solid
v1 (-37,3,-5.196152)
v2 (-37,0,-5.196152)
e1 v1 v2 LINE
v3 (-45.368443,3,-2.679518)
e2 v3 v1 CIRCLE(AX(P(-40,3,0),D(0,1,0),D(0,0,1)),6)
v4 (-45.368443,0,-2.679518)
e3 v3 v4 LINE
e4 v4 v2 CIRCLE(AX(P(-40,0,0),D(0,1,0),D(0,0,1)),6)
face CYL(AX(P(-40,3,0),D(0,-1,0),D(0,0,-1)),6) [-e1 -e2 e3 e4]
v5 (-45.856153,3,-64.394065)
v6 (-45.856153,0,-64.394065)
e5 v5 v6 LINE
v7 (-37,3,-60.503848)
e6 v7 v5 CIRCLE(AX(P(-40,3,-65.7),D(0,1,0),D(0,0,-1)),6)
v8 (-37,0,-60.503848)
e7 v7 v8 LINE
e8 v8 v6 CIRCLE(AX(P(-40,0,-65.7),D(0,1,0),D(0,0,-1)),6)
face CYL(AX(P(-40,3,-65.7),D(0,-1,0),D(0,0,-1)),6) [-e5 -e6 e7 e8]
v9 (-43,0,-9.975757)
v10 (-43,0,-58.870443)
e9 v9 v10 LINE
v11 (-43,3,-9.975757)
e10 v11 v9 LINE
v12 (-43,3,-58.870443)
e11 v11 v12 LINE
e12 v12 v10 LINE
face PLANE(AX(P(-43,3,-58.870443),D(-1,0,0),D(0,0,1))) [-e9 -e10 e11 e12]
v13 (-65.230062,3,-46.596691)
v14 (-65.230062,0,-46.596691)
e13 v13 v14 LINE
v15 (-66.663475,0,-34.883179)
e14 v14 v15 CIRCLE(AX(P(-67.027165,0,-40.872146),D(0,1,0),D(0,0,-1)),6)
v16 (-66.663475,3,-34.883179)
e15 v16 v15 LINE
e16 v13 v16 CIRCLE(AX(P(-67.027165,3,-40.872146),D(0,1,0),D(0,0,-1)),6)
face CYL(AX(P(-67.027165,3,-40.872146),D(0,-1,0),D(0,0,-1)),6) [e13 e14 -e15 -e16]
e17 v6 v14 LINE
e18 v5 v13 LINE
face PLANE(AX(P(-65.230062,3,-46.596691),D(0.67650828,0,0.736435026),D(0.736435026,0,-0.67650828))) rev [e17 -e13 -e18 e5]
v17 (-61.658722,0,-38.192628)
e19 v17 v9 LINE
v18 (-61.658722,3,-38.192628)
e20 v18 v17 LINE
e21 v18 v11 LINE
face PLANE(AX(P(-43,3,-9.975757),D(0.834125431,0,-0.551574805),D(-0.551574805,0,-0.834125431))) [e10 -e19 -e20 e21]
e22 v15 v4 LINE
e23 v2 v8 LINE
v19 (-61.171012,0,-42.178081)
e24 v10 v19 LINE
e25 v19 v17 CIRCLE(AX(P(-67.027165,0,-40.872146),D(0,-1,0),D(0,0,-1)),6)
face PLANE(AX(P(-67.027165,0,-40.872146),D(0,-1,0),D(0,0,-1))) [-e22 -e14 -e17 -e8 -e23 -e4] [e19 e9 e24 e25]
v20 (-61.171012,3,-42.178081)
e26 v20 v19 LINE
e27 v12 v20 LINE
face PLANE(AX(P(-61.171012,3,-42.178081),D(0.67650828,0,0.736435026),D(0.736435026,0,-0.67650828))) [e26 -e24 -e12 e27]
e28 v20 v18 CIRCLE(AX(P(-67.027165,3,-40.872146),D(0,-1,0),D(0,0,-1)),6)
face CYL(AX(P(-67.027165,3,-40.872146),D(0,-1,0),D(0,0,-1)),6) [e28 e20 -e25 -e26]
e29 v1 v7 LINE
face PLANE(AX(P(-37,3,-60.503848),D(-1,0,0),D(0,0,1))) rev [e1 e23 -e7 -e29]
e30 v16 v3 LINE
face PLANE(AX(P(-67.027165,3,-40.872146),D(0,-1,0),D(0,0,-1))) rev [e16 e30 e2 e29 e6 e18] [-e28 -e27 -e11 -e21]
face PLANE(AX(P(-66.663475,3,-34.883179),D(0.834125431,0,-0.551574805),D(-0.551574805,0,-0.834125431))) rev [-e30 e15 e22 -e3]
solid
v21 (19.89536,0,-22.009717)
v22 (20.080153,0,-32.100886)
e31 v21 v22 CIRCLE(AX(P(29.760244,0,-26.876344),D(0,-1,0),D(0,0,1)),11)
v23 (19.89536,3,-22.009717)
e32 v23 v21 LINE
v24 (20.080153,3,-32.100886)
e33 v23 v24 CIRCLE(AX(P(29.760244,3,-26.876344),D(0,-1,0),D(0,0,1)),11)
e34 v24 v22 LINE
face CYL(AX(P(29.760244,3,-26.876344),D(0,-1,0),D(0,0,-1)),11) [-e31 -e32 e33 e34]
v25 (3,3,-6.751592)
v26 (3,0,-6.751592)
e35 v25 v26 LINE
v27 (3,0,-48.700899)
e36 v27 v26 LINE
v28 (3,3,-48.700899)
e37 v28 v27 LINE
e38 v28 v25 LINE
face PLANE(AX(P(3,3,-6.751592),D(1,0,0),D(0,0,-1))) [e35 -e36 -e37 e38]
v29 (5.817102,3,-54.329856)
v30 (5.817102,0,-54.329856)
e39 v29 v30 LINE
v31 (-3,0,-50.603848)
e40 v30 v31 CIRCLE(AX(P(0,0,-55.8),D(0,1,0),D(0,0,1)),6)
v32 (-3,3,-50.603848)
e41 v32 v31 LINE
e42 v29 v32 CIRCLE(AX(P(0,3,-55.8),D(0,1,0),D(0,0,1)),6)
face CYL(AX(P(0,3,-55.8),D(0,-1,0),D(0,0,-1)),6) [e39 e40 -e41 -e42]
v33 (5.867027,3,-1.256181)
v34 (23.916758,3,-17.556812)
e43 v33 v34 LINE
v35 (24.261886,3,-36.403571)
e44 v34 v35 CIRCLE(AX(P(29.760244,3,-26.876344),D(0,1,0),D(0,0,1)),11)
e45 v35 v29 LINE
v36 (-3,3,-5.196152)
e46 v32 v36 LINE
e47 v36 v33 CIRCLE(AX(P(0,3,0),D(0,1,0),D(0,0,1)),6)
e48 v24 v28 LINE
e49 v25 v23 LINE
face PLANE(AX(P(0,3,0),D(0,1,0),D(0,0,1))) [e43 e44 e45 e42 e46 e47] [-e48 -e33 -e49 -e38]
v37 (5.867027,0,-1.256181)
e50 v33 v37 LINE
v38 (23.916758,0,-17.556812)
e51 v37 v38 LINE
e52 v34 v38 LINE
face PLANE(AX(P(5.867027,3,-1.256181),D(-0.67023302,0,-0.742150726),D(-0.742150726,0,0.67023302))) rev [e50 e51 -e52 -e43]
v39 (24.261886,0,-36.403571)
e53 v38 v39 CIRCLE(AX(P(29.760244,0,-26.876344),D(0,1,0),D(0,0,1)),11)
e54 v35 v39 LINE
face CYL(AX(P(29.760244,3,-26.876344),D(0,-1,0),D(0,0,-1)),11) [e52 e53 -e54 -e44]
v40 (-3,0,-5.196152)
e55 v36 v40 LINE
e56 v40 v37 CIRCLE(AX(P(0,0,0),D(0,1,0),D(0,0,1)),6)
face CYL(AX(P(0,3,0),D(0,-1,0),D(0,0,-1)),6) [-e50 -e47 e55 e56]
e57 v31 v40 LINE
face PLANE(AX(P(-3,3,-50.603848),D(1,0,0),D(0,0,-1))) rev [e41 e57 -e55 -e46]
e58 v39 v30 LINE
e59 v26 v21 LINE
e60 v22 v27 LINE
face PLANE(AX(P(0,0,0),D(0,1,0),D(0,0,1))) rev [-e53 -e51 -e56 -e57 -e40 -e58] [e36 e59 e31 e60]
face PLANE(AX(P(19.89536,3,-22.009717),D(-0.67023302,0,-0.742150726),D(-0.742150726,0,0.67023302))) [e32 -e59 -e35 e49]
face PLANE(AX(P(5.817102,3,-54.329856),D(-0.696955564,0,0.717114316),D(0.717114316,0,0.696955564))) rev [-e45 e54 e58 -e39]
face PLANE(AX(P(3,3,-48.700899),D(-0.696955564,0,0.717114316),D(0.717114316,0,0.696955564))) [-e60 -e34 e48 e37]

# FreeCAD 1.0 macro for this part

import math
import FreeCAD as App
import Part
import Sketcher

V = App.Vector
Q = App.Units.Quantity

doc = App.newDocument("Part")
body = doc.addObject("PartDesign::Body", "Body")

sketch1 = doc.addObject("Sketcher::SketchObject", "Sketch")
body.addObject(sketch1)
sketch1.AttachmentSupport = (doc.XZ_Plane, [""])
sketch1.MapMode = "FlatFace"
sketch1.addGeometry([
    Part.LineSegment(V(-45.856153, -64.394065, 0), V(-65.230062, -46.596691, 0)),
    Part.ArcOfCircle(Part.Circle(V(-67.027165, -40.872146, 0), V(0, 0, 1), 6), math.radians(86.524882), math.radians(287.428613)),
    Part.LineSegment(V(-66.663475, -34.883179, 0), V(-45.368443, -2.679518, 0)),
    Part.ArcOfCircle(Part.Circle(V(-40, 0, 0), V(0, 0, 1), 6), math.radians(-60), math.radians(206.524882)),
    Part.LineSegment(V(-37, -5.196152, 0), V(-37, -60.503848, 0)),
    Part.ArcOfCircle(Part.Circle(V(-40, -65.7, 0), V(0, 0, 1), 6), math.radians(167.428613), math.radians(420)),
    Part.LineSegment(V(-61.171012, -42.178081, 0), V(-43, -58.870443, 0)),
    Part.LineSegment(V(-43, -58.870443, 0), V(-43, -9.975757, 0)),
    Part.LineSegment(V(-43, -9.975757, 0), V(-61.658722, -38.192628, 0)),
    Part.ArcOfCircle(Part.Circle(V(-67.027165, -40.872146, 0), V(0, 0, 1), 6), math.radians(-12.571387), math.radians(26.524882)),
], False)
sketch1.addConstraint([
    Sketcher.Constraint("Coincident", 0, 2, 1, 2),
    Sketcher.Constraint("Coincident", 1, 1, 2, 1),
    Sketcher.Constraint("Coincident", 2, 2, 3, 2),
    Sketcher.Constraint("Coincident", 3, 1, 4, 1),
    Sketcher.Constraint("Coincident", 4, 2, 5, 2),
    Sketcher.Constraint("Coincident", 5, 1, 0, 1),
    Sketcher.Constraint("Coincident", 6, 2, 7, 1),
    Sketcher.Constraint("Coincident", 7, 2, 8, 1),
    Sketcher.Constraint("Coincident", 8, 2, 9, 2),
    Sketcher.Constraint("Coincident", 9, 1, 6, 1),
    Sketcher.Constraint("Vertical", 4),
    Sketcher.Constraint("Vertical", 7),
    Sketcher.Constraint("Coincident", 9, 3, 1, 3),
    Sketcher.Constraint("Equal", 1, 3),
    Sketcher.Constraint("Equal", 3, 5),
    Sketcher.Constraint("Equal", 5, 9),
    Sketcher.Constraint("PointOnObject", 3, 3, -1),
    Sketcher.Constraint("Parallel", 0, 6),
    Sketcher.Constraint("Parallel", 2, 8),
    Sketcher.Constraint("Vertical", 3, 3, 5, 3),
    Sketcher.Constraint("Radius", 1, Q("6 mm")),
    Sketcher.Constraint("DistanceX", 3, 3, -1, 1, Q("40 mm")),
    Sketcher.Constraint("DistanceX", 3, 1, -1, 1, Q("37 mm")),
    Sketcher.Constraint("DistanceX", 6, 2, -1, 1, Q("43 mm")),
    Sketcher.Constraint("DistanceY", 5, 3, -1, 1, Q("65.7 mm")),
    Sketcher.Constraint("DistanceY", 4, 2, 1, 3, Q("19.631701 mm")),
    Sketcher.Constraint("Distance", 6, Q("24.674291 mm")),
    Sketcher.Constraint("Distance", 8, Q("33.82809 mm")),
    Sketcher.Constraint("DistanceY", 7, 1, 7, 2, Q("48.894686 mm")),
    Sketcher.Constraint("DistanceX", 0, 2, -1, 1, Q("65.230062 mm")),
    Sketcher.Constraint("DistanceY", 0, 2, -1, 1, Q("46.596691 mm")),
    Sketcher.Constraint("DistanceY", 1, 1, -1, 1, Q("34.883179 mm")),
    Sketcher.Constraint("DistanceY", 2, 2, -1, 1, Q("2.679518 mm")),
])
pad1 = doc.addObject("PartDesign::Pad", "Pad")
body.addObject(pad1)
pad1.Profile = sketch1
pad1.Length = 3
pad1.Reversed = True
body2 = doc.addObject("PartDesign::Body", "Body001")

sketch2 = doc.addObject("Sketcher::SketchObject", "Sketch001")
body2.addObject(sketch2)
sketch2.AttachmentSupport = (doc.getObject("XZ_Plane001"), [""])
sketch2.MapMode = "FlatFace"
sketch2.addGeometry([
    Part.LineSegment(V(-3, -50.603848, 0), V(-3, -5.196152, 0)),
    Part.ArcOfCircle(Part.Circle(V(0, 0, 0), V(0, 0, 1), 6), math.radians(-12.085052), math.radians(240)),
    Part.LineSegment(V(5.867027, -1.256181, 0), V(23.916758, -17.556812, 0)),
    Part.ArcOfCircle(Part.Circle(V(29.760244, -26.876344, 0), V(0, 0, 1), 11), math.radians(-119.990124), math.radians(122.088328)),
    Part.LineSegment(V(24.261886, -36.403571, 0), V(5.817102, -54.329856, 0)),
    Part.ArcOfCircle(Part.Circle(V(0, -55.8, 0), V(0, 0, 1), 6), math.radians(120), math.radians(374.183256)),
    Part.ArcOfCircle(Part.Circle(V(29.760244, -26.876344, 0), V(0, 0, 1), 11), math.radians(153.741568), math.radians(208.356636)),
    Part.LineSegment(V(19.89536, -22.009717, 0), V(3, -6.751592, 0)),
    Part.LineSegment(V(3, -6.751592, 0), V(3, -48.700899, 0)),
    Part.LineSegment(V(3, -48.700899, 0), V(20.080153, -32.100886, 0)),
], False)
sketch2.addConstraint([
    Sketcher.Constraint("Coincident", 0, 2, 1, 2),
    Sketcher.Constraint("Coincident", 1, 1, 2, 1),
    Sketcher.Constraint("Coincident", 2, 2, 3, 2),
    Sketcher.Constraint("Coincident", 3, 1, 4, 1),
    Sketcher.Constraint("Coincident", 4, 2, 5, 2),
    Sketcher.Constraint("Coincident", 5, 1, 0, 1),
    Sketcher.Constraint("Coincident", 6, 1, 7, 1),
    Sketcher.Constraint("Coincident", 7, 2, 8, 1),
    Sketcher.Constraint("Coincident", 8, 2, 9, 1),
    Sketcher.Constraint("Coincident", 9, 2, 6, 2),
    Sketcher.Constraint("Vertical", 0),
    Sketcher.Constraint("Vertical", 8),
    Sketcher.Constraint("Coincident", 1, 3, -1, 1),
    Sketcher.Constraint("Coincident", 6, 3, 3, 3),
    Sketcher.Constraint("Equal", 1, 5),
    Sketcher.Constraint("Equal", 3, 6),
    Sketcher.Constraint("PointOnObject", 5, 3, -2),
    Sketcher.Constraint("Parallel", 2, 7),
    Sketcher.Constraint("Parallel", 4, 9),
    Sketcher.Constraint("Radius", 1, Q("6 mm")),
    Sketcher.Constraint("Radius", 3, Q("11 mm")),
    Sketcher.Constraint("DistanceX", 0, 2, -1, 1, Q("3 mm")),
    Sketcher.Constraint("DistanceX", -1, 1, 7, 2, Q("3 mm")),
    Sketcher.Constraint("DistanceY", 5, 3, -1, 1, Q("55.8 mm")),
    Sketcher.Constraint("DistanceX", -1, 1, 4, 2, Q("5.817102 mm")),
    Sketcher.Constraint("DistanceY", 8, 2, -1, 1, Q("48.700899 mm")),
    Sketcher.Constraint("DistanceX", 6, 1, 2, 2, Q("4.021398 mm")),
    Sketcher.Constraint("DistanceY", 8, 2, 8, 1, Q("41.949307 mm")),
    Sketcher.Constraint("DistanceY", 1, 1, -1, 1, Q("1.256181 mm")),
    Sketcher.Constraint("DistanceX", -1, 1, 2, 2, Q("23.916758 mm")),
    Sketcher.Constraint("DistanceY", 3, 1, -1, 1, Q("36.403571 mm")),
    Sketcher.Constraint("DistanceY", 3, 3, 0, 2, Q("21.680192 mm")),
])
pad2 = doc.addObject("PartDesign::Pad", "Pad001")
body2.addObject(pad2)
pad2.Profile = sketch2
pad2.Length = 3
pad2.Reversed = True

doc.recompute()
